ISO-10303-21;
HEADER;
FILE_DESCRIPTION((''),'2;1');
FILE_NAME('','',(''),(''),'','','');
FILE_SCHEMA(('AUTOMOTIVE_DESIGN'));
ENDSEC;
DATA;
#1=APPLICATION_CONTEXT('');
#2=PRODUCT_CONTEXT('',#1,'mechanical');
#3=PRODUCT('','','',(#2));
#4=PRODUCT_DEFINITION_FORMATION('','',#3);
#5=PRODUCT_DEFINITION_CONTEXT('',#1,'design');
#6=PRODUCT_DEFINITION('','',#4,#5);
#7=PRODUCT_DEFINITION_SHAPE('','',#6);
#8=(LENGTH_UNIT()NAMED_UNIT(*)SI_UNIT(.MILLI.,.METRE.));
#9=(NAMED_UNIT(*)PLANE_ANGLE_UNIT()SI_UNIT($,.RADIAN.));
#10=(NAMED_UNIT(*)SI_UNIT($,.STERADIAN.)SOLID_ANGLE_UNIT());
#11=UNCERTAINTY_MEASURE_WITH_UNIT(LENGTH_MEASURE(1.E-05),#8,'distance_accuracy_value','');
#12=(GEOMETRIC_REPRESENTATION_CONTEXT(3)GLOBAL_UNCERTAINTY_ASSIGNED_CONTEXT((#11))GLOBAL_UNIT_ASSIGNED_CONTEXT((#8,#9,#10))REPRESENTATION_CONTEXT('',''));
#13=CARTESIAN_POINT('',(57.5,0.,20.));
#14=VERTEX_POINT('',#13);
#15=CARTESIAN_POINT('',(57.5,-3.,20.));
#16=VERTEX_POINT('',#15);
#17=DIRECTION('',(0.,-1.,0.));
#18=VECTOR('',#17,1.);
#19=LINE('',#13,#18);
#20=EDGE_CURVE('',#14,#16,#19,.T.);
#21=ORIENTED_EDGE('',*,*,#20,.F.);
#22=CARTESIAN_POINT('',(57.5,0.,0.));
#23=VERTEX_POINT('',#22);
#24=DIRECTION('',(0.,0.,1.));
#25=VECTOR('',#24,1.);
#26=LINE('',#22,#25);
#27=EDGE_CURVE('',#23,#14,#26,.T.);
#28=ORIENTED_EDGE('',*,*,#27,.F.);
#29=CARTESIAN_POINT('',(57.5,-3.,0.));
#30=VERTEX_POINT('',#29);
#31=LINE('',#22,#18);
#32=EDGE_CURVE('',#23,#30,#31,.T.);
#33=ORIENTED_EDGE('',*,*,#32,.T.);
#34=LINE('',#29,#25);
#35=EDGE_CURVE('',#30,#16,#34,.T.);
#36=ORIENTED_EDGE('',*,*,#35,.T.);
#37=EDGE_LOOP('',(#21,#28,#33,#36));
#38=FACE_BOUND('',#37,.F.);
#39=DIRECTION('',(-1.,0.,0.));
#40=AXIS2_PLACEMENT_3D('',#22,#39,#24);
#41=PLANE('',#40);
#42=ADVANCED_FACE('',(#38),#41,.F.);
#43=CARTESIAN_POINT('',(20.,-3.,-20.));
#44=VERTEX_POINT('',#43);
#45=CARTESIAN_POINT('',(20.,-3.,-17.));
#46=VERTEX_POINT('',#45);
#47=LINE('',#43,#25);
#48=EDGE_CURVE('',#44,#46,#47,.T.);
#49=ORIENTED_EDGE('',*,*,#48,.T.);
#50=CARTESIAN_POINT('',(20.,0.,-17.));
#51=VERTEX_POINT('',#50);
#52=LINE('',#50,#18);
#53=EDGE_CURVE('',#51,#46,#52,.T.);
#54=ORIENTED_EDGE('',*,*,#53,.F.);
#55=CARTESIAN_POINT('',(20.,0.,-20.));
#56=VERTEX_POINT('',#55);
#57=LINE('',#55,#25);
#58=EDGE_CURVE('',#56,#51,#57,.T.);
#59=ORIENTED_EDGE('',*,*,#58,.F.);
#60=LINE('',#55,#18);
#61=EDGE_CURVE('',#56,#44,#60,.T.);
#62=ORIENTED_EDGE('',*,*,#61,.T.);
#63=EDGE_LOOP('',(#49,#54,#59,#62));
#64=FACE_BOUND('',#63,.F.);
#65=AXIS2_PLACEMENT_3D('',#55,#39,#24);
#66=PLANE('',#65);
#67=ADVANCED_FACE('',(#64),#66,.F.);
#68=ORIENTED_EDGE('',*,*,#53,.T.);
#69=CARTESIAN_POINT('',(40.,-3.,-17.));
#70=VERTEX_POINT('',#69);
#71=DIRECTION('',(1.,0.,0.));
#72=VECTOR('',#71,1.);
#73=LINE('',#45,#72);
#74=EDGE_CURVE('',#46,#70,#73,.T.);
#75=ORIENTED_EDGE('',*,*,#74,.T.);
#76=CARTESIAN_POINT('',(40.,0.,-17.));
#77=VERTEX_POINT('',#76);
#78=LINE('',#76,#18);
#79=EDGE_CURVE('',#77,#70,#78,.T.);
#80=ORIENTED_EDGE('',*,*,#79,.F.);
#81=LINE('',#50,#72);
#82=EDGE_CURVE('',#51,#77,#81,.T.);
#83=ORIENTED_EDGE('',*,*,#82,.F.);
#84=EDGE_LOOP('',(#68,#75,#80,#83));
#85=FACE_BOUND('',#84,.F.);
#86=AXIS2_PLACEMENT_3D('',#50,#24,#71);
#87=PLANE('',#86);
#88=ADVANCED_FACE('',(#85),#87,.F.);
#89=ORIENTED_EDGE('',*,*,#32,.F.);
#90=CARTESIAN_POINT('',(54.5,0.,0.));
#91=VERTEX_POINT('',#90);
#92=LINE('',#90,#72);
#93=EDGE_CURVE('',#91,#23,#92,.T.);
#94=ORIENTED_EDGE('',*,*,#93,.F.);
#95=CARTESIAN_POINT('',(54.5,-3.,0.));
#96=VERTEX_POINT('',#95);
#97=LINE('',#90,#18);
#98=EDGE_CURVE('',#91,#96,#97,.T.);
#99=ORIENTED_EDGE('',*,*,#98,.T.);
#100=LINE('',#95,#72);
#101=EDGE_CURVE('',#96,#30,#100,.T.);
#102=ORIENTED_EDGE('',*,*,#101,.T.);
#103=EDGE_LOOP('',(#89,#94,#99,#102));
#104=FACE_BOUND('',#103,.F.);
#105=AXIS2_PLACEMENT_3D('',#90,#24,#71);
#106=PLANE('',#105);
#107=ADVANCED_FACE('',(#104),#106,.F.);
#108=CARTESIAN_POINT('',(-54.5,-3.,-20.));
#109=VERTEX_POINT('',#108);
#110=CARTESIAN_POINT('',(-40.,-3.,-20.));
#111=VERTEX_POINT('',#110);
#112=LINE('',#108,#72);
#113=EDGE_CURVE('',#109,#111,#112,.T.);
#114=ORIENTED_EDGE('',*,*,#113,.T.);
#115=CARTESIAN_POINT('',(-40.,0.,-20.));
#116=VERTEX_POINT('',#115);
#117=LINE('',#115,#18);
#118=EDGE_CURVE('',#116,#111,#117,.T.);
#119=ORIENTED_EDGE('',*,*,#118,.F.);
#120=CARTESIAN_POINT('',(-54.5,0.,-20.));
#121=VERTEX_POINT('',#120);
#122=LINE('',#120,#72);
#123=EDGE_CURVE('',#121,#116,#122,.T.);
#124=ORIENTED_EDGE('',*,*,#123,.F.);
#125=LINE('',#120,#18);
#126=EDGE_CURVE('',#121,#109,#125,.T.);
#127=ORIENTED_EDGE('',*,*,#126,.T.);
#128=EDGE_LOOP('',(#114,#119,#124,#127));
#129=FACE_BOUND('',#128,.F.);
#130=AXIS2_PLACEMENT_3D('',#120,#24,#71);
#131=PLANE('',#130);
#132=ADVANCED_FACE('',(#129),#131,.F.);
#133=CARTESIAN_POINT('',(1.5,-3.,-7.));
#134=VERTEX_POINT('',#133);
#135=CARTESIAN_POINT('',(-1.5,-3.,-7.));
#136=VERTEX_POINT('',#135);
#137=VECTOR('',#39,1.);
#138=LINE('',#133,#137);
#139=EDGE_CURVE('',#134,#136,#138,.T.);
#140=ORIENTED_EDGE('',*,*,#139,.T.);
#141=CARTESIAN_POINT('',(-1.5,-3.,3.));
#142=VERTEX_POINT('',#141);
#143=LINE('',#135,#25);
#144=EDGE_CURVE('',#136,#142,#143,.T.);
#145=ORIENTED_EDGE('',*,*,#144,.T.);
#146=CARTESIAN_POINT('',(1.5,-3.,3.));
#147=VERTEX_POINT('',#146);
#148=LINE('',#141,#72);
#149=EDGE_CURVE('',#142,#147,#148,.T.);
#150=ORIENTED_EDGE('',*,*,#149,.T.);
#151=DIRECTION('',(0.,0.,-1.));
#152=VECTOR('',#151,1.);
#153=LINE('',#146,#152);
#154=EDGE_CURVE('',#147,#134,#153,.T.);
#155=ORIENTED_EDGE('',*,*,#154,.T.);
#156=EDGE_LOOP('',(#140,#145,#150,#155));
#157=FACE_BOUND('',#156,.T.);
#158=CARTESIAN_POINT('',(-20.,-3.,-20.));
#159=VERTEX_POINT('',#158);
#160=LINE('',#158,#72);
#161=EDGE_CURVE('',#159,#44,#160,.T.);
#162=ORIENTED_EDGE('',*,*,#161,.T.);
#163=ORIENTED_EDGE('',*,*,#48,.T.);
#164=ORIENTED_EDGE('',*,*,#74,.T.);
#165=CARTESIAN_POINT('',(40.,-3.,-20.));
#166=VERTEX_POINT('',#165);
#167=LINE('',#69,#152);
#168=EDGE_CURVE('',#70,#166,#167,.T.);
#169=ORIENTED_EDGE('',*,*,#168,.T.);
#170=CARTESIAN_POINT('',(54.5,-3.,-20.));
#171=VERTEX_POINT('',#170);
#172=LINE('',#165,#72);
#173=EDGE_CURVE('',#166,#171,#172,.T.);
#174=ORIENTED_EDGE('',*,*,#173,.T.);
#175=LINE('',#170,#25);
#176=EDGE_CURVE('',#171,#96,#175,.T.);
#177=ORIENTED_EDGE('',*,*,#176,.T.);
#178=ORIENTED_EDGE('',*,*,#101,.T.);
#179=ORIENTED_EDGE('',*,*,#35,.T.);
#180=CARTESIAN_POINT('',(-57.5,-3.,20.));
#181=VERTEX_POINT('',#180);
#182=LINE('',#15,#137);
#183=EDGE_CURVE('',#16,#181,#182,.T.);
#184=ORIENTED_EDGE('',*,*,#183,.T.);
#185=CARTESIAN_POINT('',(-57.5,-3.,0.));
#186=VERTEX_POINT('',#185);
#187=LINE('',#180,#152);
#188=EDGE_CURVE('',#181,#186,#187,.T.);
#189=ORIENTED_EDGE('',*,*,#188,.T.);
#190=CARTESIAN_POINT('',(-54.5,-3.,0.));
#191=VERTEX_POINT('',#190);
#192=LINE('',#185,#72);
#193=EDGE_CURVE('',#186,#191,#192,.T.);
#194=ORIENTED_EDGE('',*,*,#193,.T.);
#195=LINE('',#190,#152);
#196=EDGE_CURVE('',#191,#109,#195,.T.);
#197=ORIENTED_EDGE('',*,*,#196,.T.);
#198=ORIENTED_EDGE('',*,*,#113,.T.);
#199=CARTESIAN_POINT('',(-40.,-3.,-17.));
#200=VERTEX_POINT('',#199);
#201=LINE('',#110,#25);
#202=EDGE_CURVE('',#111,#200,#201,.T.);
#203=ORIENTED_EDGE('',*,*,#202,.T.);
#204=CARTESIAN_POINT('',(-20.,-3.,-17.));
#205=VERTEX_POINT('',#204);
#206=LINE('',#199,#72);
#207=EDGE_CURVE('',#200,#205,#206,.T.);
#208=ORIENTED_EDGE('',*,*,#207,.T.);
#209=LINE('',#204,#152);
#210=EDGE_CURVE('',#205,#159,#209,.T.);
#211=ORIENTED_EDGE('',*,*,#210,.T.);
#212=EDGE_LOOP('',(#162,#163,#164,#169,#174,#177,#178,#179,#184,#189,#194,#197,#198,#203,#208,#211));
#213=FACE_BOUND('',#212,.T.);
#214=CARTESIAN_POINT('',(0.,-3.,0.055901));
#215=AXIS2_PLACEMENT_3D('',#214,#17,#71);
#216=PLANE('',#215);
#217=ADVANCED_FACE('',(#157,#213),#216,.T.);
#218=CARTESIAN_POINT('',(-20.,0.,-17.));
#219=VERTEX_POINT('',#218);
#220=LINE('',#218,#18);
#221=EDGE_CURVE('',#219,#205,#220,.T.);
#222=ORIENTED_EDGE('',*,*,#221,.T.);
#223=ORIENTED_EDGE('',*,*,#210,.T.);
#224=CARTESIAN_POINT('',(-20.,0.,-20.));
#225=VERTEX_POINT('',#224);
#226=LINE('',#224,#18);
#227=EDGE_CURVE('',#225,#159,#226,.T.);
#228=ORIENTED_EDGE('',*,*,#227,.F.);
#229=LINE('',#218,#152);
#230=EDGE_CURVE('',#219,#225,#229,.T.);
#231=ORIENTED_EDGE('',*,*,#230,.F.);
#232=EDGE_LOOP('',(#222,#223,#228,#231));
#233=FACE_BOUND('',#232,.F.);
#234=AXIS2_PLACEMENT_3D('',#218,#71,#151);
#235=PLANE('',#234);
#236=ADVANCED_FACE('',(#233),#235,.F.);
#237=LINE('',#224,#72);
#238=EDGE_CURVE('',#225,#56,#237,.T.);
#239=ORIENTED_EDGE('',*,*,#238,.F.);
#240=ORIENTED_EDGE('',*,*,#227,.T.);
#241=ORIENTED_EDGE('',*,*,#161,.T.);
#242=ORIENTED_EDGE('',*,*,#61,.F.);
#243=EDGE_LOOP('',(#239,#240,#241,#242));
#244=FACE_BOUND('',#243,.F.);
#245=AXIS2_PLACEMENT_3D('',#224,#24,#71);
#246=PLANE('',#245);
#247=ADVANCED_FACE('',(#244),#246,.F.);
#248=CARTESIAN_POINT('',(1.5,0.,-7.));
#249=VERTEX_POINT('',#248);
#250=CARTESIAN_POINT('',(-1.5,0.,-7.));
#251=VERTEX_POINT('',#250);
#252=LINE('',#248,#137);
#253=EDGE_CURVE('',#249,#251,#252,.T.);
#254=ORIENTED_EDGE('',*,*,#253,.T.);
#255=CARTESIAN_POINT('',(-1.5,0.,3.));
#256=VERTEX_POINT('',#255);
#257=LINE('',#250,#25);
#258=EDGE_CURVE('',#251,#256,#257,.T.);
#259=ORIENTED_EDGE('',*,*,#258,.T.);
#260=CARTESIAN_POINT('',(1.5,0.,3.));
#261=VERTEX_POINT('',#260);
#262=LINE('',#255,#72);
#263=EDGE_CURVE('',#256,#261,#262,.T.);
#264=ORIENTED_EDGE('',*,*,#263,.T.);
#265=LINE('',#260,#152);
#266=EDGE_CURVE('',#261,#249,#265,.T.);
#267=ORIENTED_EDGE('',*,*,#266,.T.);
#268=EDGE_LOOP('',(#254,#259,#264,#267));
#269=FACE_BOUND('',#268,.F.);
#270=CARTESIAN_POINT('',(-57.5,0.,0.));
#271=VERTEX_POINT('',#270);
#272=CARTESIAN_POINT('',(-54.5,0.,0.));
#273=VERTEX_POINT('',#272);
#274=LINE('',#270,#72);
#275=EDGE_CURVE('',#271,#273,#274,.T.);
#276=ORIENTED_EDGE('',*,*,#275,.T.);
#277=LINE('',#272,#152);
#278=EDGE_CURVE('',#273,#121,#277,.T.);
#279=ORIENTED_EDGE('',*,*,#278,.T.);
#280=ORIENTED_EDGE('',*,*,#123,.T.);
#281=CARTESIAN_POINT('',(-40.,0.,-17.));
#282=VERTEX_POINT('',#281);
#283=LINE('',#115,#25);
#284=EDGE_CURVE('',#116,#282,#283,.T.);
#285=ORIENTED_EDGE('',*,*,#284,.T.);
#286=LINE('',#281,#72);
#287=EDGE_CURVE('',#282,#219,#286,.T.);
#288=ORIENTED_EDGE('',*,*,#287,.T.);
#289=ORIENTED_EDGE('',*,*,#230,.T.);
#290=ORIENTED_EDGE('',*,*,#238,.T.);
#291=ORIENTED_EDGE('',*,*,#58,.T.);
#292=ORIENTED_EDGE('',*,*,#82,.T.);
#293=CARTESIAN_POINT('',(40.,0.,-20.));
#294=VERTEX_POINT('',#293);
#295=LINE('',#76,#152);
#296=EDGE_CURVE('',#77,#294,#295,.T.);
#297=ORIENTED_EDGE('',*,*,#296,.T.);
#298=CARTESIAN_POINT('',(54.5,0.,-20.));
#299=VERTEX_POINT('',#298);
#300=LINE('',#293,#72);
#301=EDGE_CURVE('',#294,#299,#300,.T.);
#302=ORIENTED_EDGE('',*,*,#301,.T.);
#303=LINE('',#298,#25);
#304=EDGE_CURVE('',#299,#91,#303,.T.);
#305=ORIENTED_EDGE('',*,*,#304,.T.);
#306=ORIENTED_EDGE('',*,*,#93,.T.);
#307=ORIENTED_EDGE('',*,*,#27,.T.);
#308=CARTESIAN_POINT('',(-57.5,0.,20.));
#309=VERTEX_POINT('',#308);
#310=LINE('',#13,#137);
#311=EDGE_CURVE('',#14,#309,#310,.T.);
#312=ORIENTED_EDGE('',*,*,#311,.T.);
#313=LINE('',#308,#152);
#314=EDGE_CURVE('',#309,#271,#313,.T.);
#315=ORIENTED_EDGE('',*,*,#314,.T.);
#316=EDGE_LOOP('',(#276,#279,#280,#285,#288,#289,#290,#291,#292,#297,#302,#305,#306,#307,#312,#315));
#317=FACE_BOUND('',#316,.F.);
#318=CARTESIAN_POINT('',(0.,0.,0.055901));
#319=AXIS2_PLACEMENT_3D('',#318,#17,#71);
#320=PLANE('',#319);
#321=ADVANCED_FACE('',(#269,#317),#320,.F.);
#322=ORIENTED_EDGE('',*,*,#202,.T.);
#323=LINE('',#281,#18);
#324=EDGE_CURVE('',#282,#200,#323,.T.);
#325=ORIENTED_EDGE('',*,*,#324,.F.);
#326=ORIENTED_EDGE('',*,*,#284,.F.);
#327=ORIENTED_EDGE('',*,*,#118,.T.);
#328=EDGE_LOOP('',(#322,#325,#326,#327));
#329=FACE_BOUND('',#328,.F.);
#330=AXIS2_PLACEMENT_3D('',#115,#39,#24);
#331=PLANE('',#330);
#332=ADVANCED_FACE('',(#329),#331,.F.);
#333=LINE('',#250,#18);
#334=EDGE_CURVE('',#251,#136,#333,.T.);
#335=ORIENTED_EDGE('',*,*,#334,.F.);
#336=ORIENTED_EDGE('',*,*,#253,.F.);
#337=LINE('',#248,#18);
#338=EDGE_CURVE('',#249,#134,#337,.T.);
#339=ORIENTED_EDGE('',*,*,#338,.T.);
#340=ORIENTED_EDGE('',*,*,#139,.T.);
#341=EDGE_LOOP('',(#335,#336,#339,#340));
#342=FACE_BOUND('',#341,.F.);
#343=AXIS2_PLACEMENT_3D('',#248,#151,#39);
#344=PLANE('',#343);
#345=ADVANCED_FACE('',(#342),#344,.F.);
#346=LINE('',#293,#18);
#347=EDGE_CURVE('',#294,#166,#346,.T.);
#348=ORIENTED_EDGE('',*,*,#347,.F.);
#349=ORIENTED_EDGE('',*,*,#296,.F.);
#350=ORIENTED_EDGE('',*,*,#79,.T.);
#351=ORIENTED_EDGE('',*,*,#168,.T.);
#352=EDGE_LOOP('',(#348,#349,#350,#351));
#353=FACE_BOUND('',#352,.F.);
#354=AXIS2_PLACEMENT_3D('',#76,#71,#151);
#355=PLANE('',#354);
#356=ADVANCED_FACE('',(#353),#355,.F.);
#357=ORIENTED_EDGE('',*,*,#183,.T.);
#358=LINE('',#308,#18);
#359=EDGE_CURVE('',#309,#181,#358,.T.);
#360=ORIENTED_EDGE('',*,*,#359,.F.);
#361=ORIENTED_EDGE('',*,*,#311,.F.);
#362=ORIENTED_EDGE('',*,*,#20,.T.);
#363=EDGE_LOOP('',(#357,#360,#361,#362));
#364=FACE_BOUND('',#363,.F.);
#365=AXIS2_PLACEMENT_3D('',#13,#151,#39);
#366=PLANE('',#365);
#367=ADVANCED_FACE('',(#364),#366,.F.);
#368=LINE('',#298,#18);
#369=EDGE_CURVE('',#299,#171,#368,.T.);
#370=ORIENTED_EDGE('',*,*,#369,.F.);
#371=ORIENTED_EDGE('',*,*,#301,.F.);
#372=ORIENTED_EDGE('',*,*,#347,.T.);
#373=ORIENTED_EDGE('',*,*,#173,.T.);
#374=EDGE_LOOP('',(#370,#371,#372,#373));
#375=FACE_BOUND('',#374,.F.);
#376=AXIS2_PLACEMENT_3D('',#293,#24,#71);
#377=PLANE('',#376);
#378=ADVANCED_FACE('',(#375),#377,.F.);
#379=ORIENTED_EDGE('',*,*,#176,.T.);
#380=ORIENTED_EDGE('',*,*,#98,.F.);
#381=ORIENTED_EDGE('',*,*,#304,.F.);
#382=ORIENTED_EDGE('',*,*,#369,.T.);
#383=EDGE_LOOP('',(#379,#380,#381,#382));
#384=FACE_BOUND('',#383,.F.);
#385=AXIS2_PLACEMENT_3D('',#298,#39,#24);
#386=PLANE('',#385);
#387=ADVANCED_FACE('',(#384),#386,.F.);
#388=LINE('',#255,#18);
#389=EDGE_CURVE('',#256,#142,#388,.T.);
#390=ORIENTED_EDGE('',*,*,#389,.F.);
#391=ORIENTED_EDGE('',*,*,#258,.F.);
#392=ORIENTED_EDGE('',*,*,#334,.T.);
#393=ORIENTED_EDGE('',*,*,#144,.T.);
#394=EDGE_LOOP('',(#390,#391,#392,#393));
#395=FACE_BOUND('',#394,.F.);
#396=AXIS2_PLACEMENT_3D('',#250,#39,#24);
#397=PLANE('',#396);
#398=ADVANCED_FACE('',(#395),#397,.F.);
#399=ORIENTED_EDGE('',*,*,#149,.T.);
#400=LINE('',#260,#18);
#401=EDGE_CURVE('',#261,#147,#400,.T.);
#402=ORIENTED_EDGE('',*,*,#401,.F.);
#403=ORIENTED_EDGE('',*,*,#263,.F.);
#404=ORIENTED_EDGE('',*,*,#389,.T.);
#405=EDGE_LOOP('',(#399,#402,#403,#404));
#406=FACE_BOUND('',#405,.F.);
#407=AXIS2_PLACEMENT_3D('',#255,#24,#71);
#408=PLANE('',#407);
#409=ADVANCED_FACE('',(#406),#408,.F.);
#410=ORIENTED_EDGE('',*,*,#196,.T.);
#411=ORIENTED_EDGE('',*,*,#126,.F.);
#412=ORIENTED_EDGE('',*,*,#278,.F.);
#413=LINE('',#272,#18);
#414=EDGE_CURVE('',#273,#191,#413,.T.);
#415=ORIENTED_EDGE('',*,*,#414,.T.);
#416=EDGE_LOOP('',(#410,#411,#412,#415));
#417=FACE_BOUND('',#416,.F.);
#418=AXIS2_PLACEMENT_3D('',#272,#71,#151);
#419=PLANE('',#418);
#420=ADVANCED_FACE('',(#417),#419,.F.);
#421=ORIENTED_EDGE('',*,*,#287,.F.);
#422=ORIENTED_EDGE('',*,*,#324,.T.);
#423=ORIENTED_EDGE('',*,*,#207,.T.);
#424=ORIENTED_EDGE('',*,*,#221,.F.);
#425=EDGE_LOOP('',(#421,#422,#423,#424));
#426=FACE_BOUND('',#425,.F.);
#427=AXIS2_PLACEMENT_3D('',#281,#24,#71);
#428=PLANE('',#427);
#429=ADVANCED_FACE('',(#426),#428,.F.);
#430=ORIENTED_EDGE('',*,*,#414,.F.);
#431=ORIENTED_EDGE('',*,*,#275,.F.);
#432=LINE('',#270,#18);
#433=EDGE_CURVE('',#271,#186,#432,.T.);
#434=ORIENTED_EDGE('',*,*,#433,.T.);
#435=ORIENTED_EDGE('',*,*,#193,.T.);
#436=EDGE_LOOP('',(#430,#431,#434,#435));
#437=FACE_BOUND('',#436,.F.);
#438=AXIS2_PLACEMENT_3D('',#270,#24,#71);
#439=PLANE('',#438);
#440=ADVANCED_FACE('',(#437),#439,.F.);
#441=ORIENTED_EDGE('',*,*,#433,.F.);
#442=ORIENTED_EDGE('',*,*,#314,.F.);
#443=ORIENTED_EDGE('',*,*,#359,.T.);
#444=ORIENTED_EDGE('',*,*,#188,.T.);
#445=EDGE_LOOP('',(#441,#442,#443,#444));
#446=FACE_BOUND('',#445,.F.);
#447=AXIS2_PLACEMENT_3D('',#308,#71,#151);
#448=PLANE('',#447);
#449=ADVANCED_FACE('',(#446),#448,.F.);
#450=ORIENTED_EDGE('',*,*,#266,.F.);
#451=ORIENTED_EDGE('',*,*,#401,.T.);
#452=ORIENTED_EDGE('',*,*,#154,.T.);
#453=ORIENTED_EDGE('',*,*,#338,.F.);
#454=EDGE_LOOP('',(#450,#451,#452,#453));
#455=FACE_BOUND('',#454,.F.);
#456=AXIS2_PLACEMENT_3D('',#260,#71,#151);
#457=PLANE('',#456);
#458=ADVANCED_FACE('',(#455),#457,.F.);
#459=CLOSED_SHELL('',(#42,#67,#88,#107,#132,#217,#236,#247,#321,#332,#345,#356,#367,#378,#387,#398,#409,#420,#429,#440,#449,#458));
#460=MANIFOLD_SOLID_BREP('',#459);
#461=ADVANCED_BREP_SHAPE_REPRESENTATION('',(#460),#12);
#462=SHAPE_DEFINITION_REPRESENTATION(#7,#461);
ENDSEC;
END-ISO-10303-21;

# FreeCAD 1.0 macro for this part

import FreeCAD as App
import Part
import Sketcher
Q = App.Units.Quantity

doc = App.newDocument("Part")
body = doc.addObject("PartDesign::Body", "Body")

sketch1 = body.newObject("Sketcher::SketchObject", "Sketch")
sketch1.AttachmentSupport = (doc.getObject("XZ_Plane"), [""])
sketch1.MapMode = "FlatFace"
sketch1.addGeometry([
    Part.LineSegment(App.Vector(40, -20, 0), App.Vector(54.5, -20, 0)),
    Part.LineSegment(App.Vector(54.5, -20, 0), App.Vector(54.5, 0, 0)),
    Part.LineSegment(App.Vector(54.5, 0, 0), App.Vector(57.5, 0, 0)),
    Part.LineSegment(App.Vector(57.5, 0, 0), App.Vector(57.5, 20, 0)),
    Part.LineSegment(App.Vector(57.5, 20, 0), App.Vector(-57.5, 20, 0)),
    Part.LineSegment(App.Vector(-57.5, 20, 0), App.Vector(-57.5, 0, 0)),
    Part.LineSegment(App.Vector(-57.5, 0, 0), App.Vector(-54.5, 0, 0)),
    Part.LineSegment(App.Vector(-54.5, 0, 0), App.Vector(-54.5, -20, 0)),
    Part.LineSegment(App.Vector(-54.5, -20, 0), App.Vector(-40, -20, 0)),
    Part.LineSegment(App.Vector(-40, -20, 0), App.Vector(-40, -17, 0)),
    Part.LineSegment(App.Vector(-40, -17, 0), App.Vector(-20, -17, 0)),
    Part.LineSegment(App.Vector(-20, -17, 0), App.Vector(-20, -20, 0)),
    Part.LineSegment(App.Vector(-20, -20, 0), App.Vector(20, -20, 0)),
    Part.LineSegment(App.Vector(20, -20, 0), App.Vector(20, -17, 0)),
    Part.LineSegment(App.Vector(20, -17, 0), App.Vector(40, -17, 0)),
    Part.LineSegment(App.Vector(40, -17, 0), App.Vector(40, -20, 0)),
    Part.LineSegment(App.Vector(-1.5, -7, 0), App.Vector(-1.5, 3, 0)),
    Part.LineSegment(App.Vector(-1.5, 3, 0), App.Vector(1.5, 3, 0)),
    Part.LineSegment(App.Vector(1.5, 3, 0), App.Vector(1.5, -7, 0)),
    Part.LineSegment(App.Vector(1.5, -7, 0), App.Vector(-1.5, -7, 0)),
], False)
sketch1.addConstraint([
    Sketcher.Constraint("Coincident", 0, 2, 1, 1),
    Sketcher.Constraint("Coincident", 1, 2, 2, 1),
    Sketcher.Constraint("Coincident", 2, 2, 3, 1),
    Sketcher.Constraint("Coincident", 3, 2, 4, 1),
    Sketcher.Constraint("Coincident", 4, 2, 5, 1),
    Sketcher.Constraint("Coincident", 5, 2, 6, 1),
    Sketcher.Constraint("Coincident", 6, 2, 7, 1),
    Sketcher.Constraint("Coincident", 7, 2, 8, 1),
    Sketcher.Constraint("Coincident", 8, 2, 9, 1),
    Sketcher.Constraint("Coincident", 9, 2, 10, 1),
    Sketcher.Constraint("Coincident", 10, 2, 11, 1),
    Sketcher.Constraint("Coincident", 11, 2, 12, 1),
    Sketcher.Constraint("Coincident", 12, 2, 13, 1),
    Sketcher.Constraint("Coincident", 13, 2, 14, 1),
    Sketcher.Constraint("Coincident", 14, 2, 15, 1),
    Sketcher.Constraint("Coincident", 15, 2, 0, 1),
    Sketcher.Constraint("Coincident", 16, 2, 17, 1),
    Sketcher.Constraint("Coincident", 17, 2, 18, 1),
    Sketcher.Constraint("Coincident", 18, 2, 19, 1),
    Sketcher.Constraint("Coincident", 19, 2, 16, 1),
    Sketcher.Constraint("Horizontal", 0),
    Sketcher.Constraint("Vertical", 1),
    Sketcher.Constraint("Horizontal", 2),
    Sketcher.Constraint("Vertical", 3),
    Sketcher.Constraint("Horizontal", 4),
    Sketcher.Constraint("Vertical", 5),
    Sketcher.Constraint("Horizontal", 6),
    Sketcher.Constraint("Vertical", 7),
    Sketcher.Constraint("Horizontal", 8),
    Sketcher.Constraint("Vertical", 9),
    Sketcher.Constraint("Horizontal", 10),
    Sketcher.Constraint("Vertical", 11),
    Sketcher.Constraint("Horizontal", 12),
    Sketcher.Constraint("Vertical", 13),
    Sketcher.Constraint("Horizontal", 14),
    Sketcher.Constraint("Vertical", 15),
    Sketcher.Constraint("Vertical", 16),
    Sketcher.Constraint("Horizontal", 17),
    Sketcher.Constraint("Vertical", 18),
    Sketcher.Constraint("Horizontal", 19),
    Sketcher.Constraint("Symmetric", 2, 2, 5, 2, -1, 1),
    Sketcher.Constraint("Symmetric", 1, 2, 6, 2, -2),
    Sketcher.Constraint("Symmetric", 10, 2, 13, 2, -2),
    Sketcher.Constraint("Symmetric", 8, 2, 15, 2, -2),
    Sketcher.Constraint("Horizontal", 8, 2, 11, 2),
    Sketcher.Constraint("Equal", 6, 17),
    Sketcher.Constraint("Equal", 14, 1),
    Sketcher.Constraint("Equal", 1, 3),
    Sketcher.Constraint("Equal", 19, 9),
    Sketcher.Constraint("DistanceX", 2, 1, 2, 2, Q("3 mm")),
    Sketcher.Constraint("DistanceX", 4, 2, 4, 1, Q("115 mm")),
    Sketcher.Constraint("DistanceX", 10, 1, 10, 2, Q("20 mm")),
    Sketcher.Constraint("DistanceX", 12, 1, 12, 2, Q("40 mm")),
    Sketcher.Constraint("DistanceY", 16, 1, 16, 2, Q("10 mm")),
    Sketcher.Constraint("DistanceY", -1, 1, 16, 2, Q("3 mm")),
    Sketcher.Constraint("DistanceX", 16, 2, -1, 1, Q("1.5 mm")),
])
pad1 = body.newObject("PartDesign::Pad", "Pad")
pad1.Profile = sketch1
pad1.Length = 3

doc.recompute()
